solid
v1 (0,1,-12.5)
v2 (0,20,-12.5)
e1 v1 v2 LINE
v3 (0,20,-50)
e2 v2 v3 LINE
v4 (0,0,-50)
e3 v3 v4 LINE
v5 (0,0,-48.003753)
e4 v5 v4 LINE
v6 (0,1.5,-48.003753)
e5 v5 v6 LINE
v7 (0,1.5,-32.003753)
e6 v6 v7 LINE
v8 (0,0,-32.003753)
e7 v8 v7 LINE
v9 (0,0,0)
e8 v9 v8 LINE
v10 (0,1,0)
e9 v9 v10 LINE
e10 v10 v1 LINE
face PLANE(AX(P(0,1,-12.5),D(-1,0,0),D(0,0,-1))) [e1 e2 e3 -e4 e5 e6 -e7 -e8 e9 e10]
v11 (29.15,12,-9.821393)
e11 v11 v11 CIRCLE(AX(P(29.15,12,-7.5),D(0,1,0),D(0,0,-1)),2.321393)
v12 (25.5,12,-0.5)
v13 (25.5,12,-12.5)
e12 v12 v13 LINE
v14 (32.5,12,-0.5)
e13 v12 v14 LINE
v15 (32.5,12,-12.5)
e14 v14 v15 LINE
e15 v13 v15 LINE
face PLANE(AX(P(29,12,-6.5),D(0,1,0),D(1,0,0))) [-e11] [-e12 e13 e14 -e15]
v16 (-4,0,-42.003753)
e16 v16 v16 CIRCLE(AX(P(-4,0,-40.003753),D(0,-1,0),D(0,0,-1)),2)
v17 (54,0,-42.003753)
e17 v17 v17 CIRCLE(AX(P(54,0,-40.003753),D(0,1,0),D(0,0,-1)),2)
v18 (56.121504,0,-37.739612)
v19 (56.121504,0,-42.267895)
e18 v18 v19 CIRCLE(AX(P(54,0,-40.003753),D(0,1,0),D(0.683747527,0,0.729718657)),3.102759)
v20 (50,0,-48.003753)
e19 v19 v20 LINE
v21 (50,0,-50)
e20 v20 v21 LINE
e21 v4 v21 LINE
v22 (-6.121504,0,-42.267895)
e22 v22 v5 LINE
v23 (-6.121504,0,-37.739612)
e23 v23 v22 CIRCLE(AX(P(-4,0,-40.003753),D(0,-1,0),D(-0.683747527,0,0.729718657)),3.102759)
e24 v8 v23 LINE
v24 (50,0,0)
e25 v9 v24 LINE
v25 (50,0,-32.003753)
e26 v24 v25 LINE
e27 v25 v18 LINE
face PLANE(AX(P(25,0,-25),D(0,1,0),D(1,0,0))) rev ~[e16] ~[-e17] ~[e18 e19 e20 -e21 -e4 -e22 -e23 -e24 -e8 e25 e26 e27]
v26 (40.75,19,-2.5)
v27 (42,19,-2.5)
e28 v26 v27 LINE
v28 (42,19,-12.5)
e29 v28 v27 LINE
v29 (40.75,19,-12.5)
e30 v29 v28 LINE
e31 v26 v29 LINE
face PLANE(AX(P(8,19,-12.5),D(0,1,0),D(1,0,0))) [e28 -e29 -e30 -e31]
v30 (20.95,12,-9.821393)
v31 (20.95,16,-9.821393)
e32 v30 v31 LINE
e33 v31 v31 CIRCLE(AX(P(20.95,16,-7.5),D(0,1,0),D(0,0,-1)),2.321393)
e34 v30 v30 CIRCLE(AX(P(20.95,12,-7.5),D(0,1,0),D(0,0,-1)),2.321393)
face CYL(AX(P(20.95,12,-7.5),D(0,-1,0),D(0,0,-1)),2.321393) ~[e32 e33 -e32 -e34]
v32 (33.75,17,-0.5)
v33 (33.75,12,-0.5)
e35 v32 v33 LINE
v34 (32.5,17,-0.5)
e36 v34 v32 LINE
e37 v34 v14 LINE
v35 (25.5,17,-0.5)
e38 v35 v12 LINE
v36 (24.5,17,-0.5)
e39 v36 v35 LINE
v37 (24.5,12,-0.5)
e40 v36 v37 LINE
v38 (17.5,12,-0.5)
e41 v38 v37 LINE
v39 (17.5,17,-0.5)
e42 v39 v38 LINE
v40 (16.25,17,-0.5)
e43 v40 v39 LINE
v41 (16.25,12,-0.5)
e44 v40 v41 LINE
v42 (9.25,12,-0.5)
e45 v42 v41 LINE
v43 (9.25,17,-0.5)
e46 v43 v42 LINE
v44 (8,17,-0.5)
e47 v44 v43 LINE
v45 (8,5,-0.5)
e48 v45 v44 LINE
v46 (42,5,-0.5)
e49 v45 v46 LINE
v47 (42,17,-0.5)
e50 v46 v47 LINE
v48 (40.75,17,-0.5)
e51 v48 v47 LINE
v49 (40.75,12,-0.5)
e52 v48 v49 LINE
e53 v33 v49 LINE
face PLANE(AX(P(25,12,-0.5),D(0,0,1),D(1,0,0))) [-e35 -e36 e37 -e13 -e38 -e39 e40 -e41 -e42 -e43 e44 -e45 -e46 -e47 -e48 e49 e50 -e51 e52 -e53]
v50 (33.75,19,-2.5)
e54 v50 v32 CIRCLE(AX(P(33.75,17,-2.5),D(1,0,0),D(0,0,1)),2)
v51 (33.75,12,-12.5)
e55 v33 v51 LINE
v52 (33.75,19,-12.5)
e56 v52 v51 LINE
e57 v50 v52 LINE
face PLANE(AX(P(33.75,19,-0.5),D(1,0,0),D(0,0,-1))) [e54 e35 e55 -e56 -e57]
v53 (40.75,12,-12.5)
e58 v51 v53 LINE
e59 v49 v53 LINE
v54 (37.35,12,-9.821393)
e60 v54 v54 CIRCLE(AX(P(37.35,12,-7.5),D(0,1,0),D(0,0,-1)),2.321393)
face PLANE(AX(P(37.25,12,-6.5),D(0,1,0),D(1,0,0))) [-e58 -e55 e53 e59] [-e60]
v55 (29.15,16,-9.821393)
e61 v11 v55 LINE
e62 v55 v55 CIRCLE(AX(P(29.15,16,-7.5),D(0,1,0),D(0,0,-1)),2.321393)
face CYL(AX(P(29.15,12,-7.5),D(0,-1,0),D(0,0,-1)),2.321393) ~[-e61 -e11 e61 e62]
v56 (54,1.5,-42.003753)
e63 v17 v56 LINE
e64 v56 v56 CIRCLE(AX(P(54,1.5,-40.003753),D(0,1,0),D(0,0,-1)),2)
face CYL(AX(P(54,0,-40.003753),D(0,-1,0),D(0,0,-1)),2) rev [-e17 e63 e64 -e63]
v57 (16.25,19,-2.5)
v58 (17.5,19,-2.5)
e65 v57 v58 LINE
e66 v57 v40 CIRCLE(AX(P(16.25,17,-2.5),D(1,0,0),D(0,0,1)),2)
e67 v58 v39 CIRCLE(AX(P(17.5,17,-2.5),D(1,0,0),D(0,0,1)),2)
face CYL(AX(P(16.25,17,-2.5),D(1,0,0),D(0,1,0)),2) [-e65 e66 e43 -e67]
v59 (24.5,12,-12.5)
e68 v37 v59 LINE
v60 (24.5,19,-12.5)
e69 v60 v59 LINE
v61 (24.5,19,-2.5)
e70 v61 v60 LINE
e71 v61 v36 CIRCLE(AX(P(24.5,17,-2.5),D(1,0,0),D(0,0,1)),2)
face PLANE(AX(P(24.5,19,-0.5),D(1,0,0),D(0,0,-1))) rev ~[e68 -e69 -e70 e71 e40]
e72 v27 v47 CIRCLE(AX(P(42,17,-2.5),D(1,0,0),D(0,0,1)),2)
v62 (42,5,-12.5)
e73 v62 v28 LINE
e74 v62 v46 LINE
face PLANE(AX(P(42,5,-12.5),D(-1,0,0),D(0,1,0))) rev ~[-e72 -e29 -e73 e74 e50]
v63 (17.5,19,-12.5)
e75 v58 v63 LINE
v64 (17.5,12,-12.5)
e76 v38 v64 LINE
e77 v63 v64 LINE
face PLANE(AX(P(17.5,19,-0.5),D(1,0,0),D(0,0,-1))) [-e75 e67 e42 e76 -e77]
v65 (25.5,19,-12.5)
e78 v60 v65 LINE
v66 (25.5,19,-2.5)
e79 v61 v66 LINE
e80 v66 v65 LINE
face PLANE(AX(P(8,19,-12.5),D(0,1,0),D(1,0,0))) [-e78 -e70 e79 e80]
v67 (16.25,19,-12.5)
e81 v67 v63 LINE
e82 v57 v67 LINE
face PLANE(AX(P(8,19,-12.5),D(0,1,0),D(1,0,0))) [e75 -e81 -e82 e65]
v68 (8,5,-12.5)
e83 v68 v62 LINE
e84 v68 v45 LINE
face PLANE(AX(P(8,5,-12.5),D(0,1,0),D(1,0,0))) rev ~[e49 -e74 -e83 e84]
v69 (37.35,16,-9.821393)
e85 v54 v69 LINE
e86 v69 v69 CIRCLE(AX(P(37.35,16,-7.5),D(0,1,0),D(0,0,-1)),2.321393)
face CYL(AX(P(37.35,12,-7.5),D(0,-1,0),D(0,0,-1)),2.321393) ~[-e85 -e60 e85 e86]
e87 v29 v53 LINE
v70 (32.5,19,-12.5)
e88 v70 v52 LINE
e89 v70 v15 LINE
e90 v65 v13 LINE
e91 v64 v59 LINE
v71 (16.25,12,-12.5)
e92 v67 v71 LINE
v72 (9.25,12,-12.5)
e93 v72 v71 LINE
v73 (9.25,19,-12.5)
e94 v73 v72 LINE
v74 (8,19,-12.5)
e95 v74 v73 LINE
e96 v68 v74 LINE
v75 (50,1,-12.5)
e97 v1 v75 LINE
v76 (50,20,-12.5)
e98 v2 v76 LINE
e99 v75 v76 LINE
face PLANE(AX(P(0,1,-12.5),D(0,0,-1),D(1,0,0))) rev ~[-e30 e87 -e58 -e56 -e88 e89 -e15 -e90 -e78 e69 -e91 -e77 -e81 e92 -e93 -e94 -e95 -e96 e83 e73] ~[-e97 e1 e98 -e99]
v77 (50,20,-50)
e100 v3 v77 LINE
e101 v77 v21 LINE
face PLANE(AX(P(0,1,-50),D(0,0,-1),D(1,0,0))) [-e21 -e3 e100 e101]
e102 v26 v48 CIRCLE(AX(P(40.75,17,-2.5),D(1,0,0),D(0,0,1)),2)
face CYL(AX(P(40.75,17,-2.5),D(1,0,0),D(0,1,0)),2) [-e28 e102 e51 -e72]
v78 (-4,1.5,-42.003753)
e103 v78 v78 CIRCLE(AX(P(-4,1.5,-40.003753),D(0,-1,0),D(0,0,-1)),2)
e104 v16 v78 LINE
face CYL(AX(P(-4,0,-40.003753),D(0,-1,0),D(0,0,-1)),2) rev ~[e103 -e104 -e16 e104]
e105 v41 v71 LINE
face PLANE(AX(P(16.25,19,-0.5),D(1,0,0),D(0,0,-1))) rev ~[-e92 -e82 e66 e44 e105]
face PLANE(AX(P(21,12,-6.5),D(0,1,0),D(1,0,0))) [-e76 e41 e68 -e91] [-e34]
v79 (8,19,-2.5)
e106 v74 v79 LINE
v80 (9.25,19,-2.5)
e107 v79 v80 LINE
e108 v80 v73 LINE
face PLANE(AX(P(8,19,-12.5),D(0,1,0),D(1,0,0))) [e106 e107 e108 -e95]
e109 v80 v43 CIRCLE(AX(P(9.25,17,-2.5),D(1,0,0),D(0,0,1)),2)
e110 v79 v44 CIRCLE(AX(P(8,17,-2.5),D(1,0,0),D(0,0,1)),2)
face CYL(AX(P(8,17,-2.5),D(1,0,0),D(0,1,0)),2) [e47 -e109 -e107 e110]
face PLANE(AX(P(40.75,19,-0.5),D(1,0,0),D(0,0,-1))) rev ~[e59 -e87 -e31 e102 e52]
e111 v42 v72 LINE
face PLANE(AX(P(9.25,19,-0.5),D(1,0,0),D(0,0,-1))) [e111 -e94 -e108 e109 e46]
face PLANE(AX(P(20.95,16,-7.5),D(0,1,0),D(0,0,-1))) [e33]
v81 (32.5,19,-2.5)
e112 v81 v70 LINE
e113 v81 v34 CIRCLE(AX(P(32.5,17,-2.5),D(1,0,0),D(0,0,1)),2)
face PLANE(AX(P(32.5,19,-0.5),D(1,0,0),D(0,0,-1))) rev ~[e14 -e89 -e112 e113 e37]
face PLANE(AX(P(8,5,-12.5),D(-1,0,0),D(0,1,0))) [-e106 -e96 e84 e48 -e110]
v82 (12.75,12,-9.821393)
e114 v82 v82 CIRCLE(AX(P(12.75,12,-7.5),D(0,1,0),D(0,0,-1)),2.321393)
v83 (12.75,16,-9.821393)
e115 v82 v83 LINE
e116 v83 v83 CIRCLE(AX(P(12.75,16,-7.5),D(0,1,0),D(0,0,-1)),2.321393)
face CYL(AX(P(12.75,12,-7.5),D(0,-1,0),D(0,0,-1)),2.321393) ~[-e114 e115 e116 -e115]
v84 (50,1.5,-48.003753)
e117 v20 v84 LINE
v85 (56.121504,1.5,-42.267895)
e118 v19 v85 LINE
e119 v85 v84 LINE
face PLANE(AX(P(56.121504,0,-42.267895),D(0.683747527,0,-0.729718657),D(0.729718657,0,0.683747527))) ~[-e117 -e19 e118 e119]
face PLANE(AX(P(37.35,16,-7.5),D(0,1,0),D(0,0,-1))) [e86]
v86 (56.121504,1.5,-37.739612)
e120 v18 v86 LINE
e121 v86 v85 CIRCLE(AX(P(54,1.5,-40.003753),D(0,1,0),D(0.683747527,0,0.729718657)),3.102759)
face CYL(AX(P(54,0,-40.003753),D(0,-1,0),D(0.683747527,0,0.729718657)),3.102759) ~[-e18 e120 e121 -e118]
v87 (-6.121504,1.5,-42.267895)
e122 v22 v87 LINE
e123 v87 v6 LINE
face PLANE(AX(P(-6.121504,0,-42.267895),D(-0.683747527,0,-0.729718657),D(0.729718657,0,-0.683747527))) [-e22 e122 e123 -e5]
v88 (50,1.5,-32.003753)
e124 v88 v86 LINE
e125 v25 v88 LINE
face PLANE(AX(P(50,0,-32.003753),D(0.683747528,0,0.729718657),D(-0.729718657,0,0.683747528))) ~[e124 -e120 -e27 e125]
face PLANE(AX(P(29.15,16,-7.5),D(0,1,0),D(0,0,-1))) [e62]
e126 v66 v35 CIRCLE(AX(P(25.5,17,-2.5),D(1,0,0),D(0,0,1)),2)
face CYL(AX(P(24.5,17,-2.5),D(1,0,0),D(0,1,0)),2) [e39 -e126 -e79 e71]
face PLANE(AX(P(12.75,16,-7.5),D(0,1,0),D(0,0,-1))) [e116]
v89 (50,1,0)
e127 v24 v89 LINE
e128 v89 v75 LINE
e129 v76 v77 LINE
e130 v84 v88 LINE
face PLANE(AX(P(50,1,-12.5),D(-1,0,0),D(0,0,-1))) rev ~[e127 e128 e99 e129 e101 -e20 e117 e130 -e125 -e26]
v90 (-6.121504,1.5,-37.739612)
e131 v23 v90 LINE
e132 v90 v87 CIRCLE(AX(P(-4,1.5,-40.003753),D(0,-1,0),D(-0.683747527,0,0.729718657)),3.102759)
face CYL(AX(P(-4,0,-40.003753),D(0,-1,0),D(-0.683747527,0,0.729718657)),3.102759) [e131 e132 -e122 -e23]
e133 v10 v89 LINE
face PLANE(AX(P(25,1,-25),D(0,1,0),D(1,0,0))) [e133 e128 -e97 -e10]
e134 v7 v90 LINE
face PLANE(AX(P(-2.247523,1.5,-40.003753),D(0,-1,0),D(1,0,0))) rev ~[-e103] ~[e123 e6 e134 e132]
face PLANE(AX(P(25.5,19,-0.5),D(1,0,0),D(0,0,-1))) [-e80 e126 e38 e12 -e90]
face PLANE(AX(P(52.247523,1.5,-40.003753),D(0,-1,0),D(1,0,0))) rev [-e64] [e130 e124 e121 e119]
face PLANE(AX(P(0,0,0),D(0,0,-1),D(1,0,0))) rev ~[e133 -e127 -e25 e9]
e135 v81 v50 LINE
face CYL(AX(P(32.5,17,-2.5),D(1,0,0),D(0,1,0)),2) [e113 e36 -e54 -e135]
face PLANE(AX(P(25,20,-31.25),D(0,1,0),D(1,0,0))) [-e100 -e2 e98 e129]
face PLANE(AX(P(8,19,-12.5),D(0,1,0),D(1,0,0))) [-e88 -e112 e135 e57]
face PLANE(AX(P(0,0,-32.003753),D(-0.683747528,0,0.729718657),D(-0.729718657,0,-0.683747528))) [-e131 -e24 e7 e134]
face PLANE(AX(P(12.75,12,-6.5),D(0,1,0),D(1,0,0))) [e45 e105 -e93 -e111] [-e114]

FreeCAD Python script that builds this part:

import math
import FreeCAD as App
import Part
import Sketcher


def edges_at(feature, points):
    """Names of the edges that pass closest to the given points."""
    edges = feature.Shape.Edges
    near = lambda p: min(range(len(edges)), key=lambda i: edges[i].distToShape(Part.Vertex(*p))[0])
    return sorted({f"Edge{near(p) + 1}" for p in points})

doc = App.newDocument("Part")
body = doc.addObject("PartDesign::Body", "Body")

sketch1 = body.newObject("Sketcher::SketchObject", "Sketch")
sketch1.AttachmentSupport = (doc.getObject("XZ_Plane"), [""])
sketch1.MapMode = "FlatFace"
sketch1.addGeometry([
    Part.LineSegment(App.Vector(0, -50, 0), App.Vector(0, 0, 0)),
    Part.LineSegment(App.Vector(0, 0, 0), App.Vector(50, 0, 0)),
    Part.LineSegment(App.Vector(50, 0, 0), App.Vector(50, -50, 0)),
    Part.LineSegment(App.Vector(50, -50, 0), App.Vector(0, -50, 0)),
], False)
sketch1.addConstraint([
    Sketcher.Constraint("Coincident", 0, 2, 1, 1),
    Sketcher.Constraint("Coincident", 1, 2, 2, 1),
    Sketcher.Constraint("Coincident", 2, 2, 3, 1),
    Sketcher.Constraint("Coincident", 3, 2, 0, 1),
    Sketcher.Constraint("Vertical", 0),
    Sketcher.Constraint("Horizontal", 1),
    Sketcher.Constraint("Vertical", 2),
    Sketcher.Constraint("Horizontal", 3),
    Sketcher.Constraint("Coincident", 0, 2, -1, 1),
    Sketcher.Constraint("Equal", 3, 0),
    Sketcher.Constraint("DistanceX", 1, 1, 1, 2, 50.0),
])
pad1 = body.newObject("PartDesign::Pad", "Pad")
pad1.Profile = sketch1
pad1.Length = 1
pad1.Reversed = True

sketch2 = body.newObject("Sketcher::SketchObject", "Sketch001")
sketch2.AttachmentSupport = (doc.getObject("XZ_Plane"), [""])
sketch2.MapMode = "FlatFace"
sketch2.AttachmentOffset = App.Placement(App.Vector(0, 0, -1), App.Rotation())
sketch2.addGeometry([
    Part.LineSegment(App.Vector(0, -50, 0), App.Vector(0, -12, 0)),
    Part.LineSegment(App.Vector(0, -12, 0), App.Vector(50, -12, 0)),
    Part.LineSegment(App.Vector(50, -12, 0), App.Vector(50, -50, 0)),
    Part.LineSegment(App.Vector(50, -50, 0), App.Vector(0, -50, 0)),
], False)
sketch2.addConstraint([
    Sketcher.Constraint("Coincident", 0, 2, 1, 1),
    Sketcher.Constraint("Coincident", 1, 2, 2, 1),
    Sketcher.Constraint("Coincident", 2, 2, 3, 1),
    Sketcher.Constraint("Coincident", 3, 2, 0, 1),
    Sketcher.Constraint("Vertical", 0),
    Sketcher.Constraint("Horizontal", 1),
    Sketcher.Constraint("Vertical", 2),
    Sketcher.Constraint("Horizontal", 3),
    Sketcher.Constraint("PointOnObject", 0, 2, -2),
    Sketcher.Constraint("DistanceX", 1, 1, 1, 2, 50.0),
    Sketcher.Constraint("DistanceY", 0, 1, 0, 2, 37.5),
    Sketcher.Constraint("DistanceY", 2, 2, -1, 1, 50.0),
])
pad2 = body.newObject("PartDesign::Pad", "Pad001")
pad2.Profile = sketch2
pad2.Length = 19
pad2.Reversed = True

sketch3 = body.newObject("Sketcher::SketchObject", "Sketch002")
sketch3.AttachmentSupport = (doc.getObject("XY_Plane"), [""])
sketch3.MapMode = "FlatFace"
sketch3.AttachmentOffset = App.Placement(App.Vector(0, 0, -12.5), App.Rotation())
sketch3.addGeometry([
    Part.LineSegment(App.Vector(8, 19, 0), App.Vector(8, 5, 0)),
    Part.LineSegment(App.Vector(8, 5, 0), App.Vector(42, 5, 0)),
    Part.LineSegment(App.Vector(42, 5, 0), App.Vector(42, 19, 0)),
    Part.LineSegment(App.Vector(42, 19, 0), App.Vector(8, 19, 0)),
], False)
sketch3.addConstraint([
    Sketcher.Constraint("Coincident", 0, 2, 1, 1),
    Sketcher.Constraint("Coincident", 1, 2, 2, 1),
    Sketcher.Constraint("Coincident", 2, 2, 3, 1),
    Sketcher.Constraint("Coincident", 3, 2, 0, 1),
    Sketcher.Constraint("Vertical", 0),
    Sketcher.Constraint("Horizontal", 1),
    Sketcher.Constraint("Vertical", 2),
    Sketcher.Constraint("Horizontal", 3),
    Sketcher.Constraint("DistanceX", 1, 1, 1, 2, 34.0),
    Sketcher.Constraint("DistanceY", 0, 2, 0, 1, 14.0),
    Sketcher.Constraint("DistanceX", -1, 1, 0, 2, 8.0),
    Sketcher.Constraint("DistanceY", -1, 1, 0, 2, 5.0),
])
pad3 = body.newObject("PartDesign::Pad", "Pad002")
pad3.Profile = sketch3
pad3.Length = 12

sketch4 = body.newObject("Sketcher::SketchObject", "Sketch003")
sketch4.AttachmentSupport = (doc.getObject("XZ_Plane"), [""])
sketch4.MapMode = "FlatFace"
sketch4.addGeometry([
    Part.LineSegment(App.Vector(0, -32, 0), App.Vector(-6.1, -37.7, 0)),
    Part.ArcOfCircle(Part.Circle(App.Vector(-4, -40, 0), App.Vector(0, 0, 1), 3.1), math.radians(133), math.radians(227)),
    Part.LineSegment(App.Vector(-6.1, -42.3, 0), App.Vector(0, -48, 0)),
    Part.LineSegment(App.Vector(0, -48, 0), App.Vector(0, -32, 0)),
    Part.Circle(App.Vector(-4, -40, 0), App.Vector(0, 0, 1), 2),
], False)
sketch4.addConstraint([
    Sketcher.Constraint("Tangent", 0, 2, 1, 1),
    Sketcher.Constraint("Tangent", 1, 2, 2, 1),
    Sketcher.Constraint("Coincident", 2, 2, 3, 1),
    Sketcher.Constraint("Coincident", 3, 2, 0, 1),
    Sketcher.Constraint("Vertical", 3),
    Sketcher.Constraint("Coincident", 4, 3, 1, 3),
    Sketcher.Constraint("PointOnObject", 2, 2, -2),
    Sketcher.Constraint("Vertical", 0, 2, 1, 2),
    Sketcher.Constraint("Diameter", 4, 4.0),
    Sketcher.Constraint("DistanceY", 3, 1, 3, 2, 16.0),
    Sketcher.Constraint("DistanceX", 1, 3, -1, 1, 4.0),
    Sketcher.Constraint("Radius", 1, 3.102759),
    Sketcher.Constraint("DistanceY", 1, 3, -1, 1, 40.003753),
])
pad4 = body.newObject("PartDesign::Pad", "Pad003")
pad4.Profile = sketch4
pad4.Length = 1.5
pad4.Reversed = True
doc.recompute()

datumplane = body.newObject("PartDesign::Plane", "DatumPlane")
datumplane.AttachmentSupport = (doc.getObject("YZ_Plane"), [""])
datumplane.MapMode = "FlatFace"
datumplane.AttachmentOffset = App.Placement(App.Vector(0, 0, 25), App.Rotation())
mirrored = body.newObject("PartDesign::Mirrored", "Mirrored")
mirrored.Originals = [pad4]
mirrored.MirrorPlane = (datumplane, [""])
body.Tip = mirrored

sketch5 = body.newObject("Sketcher::SketchObject", "Sketch004")
sketch5.AttachmentSupport = (doc.getObject("XZ_Plane"), [""])
sketch5.MapMode = "FlatFace"
sketch5.AttachmentOffset = App.Placement(App.Vector(0, 0, -19), App.Rotation())
sketch5.addGeometry([
    Part.LineSegment(App.Vector(18, -12, 0), App.Vector(18, 0, 0)),
    Part.LineSegment(App.Vector(18, 0, 0), App.Vector(24, 0, 0)),
    Part.LineSegment(App.Vector(24, 0, 0), App.Vector(24, -12, 0)),
    Part.LineSegment(App.Vector(24, -12, 0), App.Vector(18, -12, 0)),
    Part.LineSegment(App.Vector(26, -12, 0), App.Vector(26, 0, 0)),
    Part.LineSegment(App.Vector(26, 0, 0), App.Vector(32, 0, 0)),
    Part.LineSegment(App.Vector(32, 0, 0), App.Vector(32, -12, 0)),
    Part.LineSegment(App.Vector(32, -12, 0), App.Vector(26, -12, 0)),
    Part.LineSegment(App.Vector(34, -12, 0), App.Vector(34, 0, 0)),
    Part.LineSegment(App.Vector(34, 0, 0), App.Vector(41, 0, 0)),
    Part.LineSegment(App.Vector(41, 0, 0), App.Vector(41, -12, 0)),
    Part.LineSegment(App.Vector(41, -12, 0), App.Vector(34, -12, 0)),
    Part.LineSegment(App.Vector(9, -12, 0), App.Vector(9, 0, 0)),
    Part.LineSegment(App.Vector(9, 0, 0), App.Vector(16, 0, 0)),
    Part.LineSegment(App.Vector(16, 0, 0), App.Vector(16, -12, 0)),
    Part.LineSegment(App.Vector(16, -12, 0), App.Vector(9, -12, 0)),
], False)
sketch5.addConstraint([
    Sketcher.Constraint("Coincident", 0, 2, 1, 1),
    Sketcher.Constraint("Coincident", 1, 2, 2, 1),
    Sketcher.Constraint("Coincident", 2, 2, 3, 1),
    Sketcher.Constraint("Coincident", 3, 2, 0, 1),
    Sketcher.Constraint("Coincident", 4, 2, 5, 1),
    Sketcher.Constraint("Coincident", 5, 2, 6, 1),
    Sketcher.Constraint("Coincident", 6, 2, 7, 1),
    Sketcher.Constraint("Coincident", 7, 2, 4, 1),
    Sketcher.Constraint("Coincident", 8, 2, 9, 1),
    Sketcher.Constraint("Coincident", 9, 2, 10, 1),
    Sketcher.Constraint("Coincident", 10, 2, 11, 1),
    Sketcher.Constraint("Coincident", 11, 2, 8, 1),
    Sketcher.Constraint("Coincident", 12, 2, 13, 1),
    Sketcher.Constraint("Coincident", 13, 2, 14, 1),
    Sketcher.Constraint("Coincident", 14, 2, 15, 1),
    Sketcher.Constraint("Coincident", 15, 2, 12, 1),
    Sketcher.Constraint("Vertical", 0),
    Sketcher.Constraint("Horizontal", 1),
    Sketcher.Constraint("Vertical", 2),
    Sketcher.Constraint("Horizontal", 3),
    Sketcher.Constraint("Vertical", 4),
    Sketcher.Constraint("Horizontal", 5),
    Sketcher.Constraint("Vertical", 6),
    Sketcher.Constraint("Horizontal", 7),
    Sketcher.Constraint("Vertical", 8),
    Sketcher.Constraint("Horizontal", 9),
    Sketcher.Constraint("Vertical", 10),
    Sketcher.Constraint("Horizontal", 11),
    Sketcher.Constraint("Vertical", 12),
    Sketcher.Constraint("Horizontal", 13),
    Sketcher.Constraint("Vertical", 14),
    Sketcher.Constraint("Horizontal", 15),
    Sketcher.Constraint("Horizontal", 1, 2, 4, 2),
    Sketcher.Constraint("Horizontal", 3, 2, 6, 2),
    Sketcher.Constraint("Horizontal", 5, 2, 8, 2),
    Sketcher.Constraint("Horizontal", 7, 2, 10, 2),
    Sketcher.Constraint("Horizontal", 9, 2, 12, 2),
    Sketcher.Constraint("Horizontal", 11, 2, 14, 2),
    Sketcher.Constraint("Equal", 3, 5),
    Sketcher.Constraint("Equal", 7, 9),
    Sketcher.Constraint("Equal", 11, 13),
    Sketcher.Constraint("DistanceX", 1, 1, 1, 2, 7.0),
    Sketcher.Constraint("DistanceY", 0, 1, 0, 2, 12.0),
    Sketcher.Constraint("DistanceX", 1, 2, 4, 2, 1.0),
    Sketcher.Constraint("DistanceX", -1, 1, 0, 2, 17.5),
    Sketcher.Constraint("DistanceY", 0, 2, -1, 1, 0.5),
    Sketcher.Constraint("DistanceX", -1, 1, 8, 2, 33.75),
    Sketcher.Constraint("DistanceX", -1, 1, 12, 2, 9.25),
])
pocket1 = body.newObject("PartDesign::Pocket", "Pocket")
pocket1.Profile = sketch5
pocket1.Length = 7
pocket1.Reversed = True
doc.recompute()

fillet = body.newObject("PartDesign::Fillet", "Fillet")
fillet.Base = (pocket1, edges_at(pocket1, [
    (41.375, 19, -0.5),
    (33.125, 19, -0.5),
    (25, 19, -0.5),
    (16.875, 19, -0.5),
    (8.625, 19, -0.5),
]))
fillet.Radius = 2

sketch6 = body.newObject("Sketcher::SketchObject", "Sketch005")
sketch6.AttachmentSupport = (doc.getObject("XZ_Plane"), [""])
sketch6.MapMode = "FlatFace"
sketch6.AttachmentOffset = App.Placement(App.Vector(0, 0, -12), App.Rotation())
sketch6.addGeometry(Part.Circle(App.Vector(12.8, -7.5, 0), App.Vector(0, 0, 1), 2.3), False)
sketch6.addConstraint([
    Sketcher.Constraint("DistanceY", 0, 3, -1, 1, 7.5),
    Sketcher.Constraint("DistanceX", -1, 1, 0, 3, 12.75),
    Sketcher.Constraint("Diameter", 0, 4.642785),
])
pad5 = body.newObject("PartDesign::Pad", "Pad004")
pad5.Profile = sketch6
pad5.Length = 4
pad5.Reversed = True
doc.recompute()

linearpattern = body.newObject("PartDesign::LinearPattern", "LinearPattern")
linearpattern.Originals = [pad5]
linearpattern.Direction = (doc.getObject("X_Axis"), [""])
linearpattern.Mode = "offset"
linearpattern.Offset = 8.2
linearpattern.Occurrences = 4
body.Tip = linearpattern

doc.recompute()
